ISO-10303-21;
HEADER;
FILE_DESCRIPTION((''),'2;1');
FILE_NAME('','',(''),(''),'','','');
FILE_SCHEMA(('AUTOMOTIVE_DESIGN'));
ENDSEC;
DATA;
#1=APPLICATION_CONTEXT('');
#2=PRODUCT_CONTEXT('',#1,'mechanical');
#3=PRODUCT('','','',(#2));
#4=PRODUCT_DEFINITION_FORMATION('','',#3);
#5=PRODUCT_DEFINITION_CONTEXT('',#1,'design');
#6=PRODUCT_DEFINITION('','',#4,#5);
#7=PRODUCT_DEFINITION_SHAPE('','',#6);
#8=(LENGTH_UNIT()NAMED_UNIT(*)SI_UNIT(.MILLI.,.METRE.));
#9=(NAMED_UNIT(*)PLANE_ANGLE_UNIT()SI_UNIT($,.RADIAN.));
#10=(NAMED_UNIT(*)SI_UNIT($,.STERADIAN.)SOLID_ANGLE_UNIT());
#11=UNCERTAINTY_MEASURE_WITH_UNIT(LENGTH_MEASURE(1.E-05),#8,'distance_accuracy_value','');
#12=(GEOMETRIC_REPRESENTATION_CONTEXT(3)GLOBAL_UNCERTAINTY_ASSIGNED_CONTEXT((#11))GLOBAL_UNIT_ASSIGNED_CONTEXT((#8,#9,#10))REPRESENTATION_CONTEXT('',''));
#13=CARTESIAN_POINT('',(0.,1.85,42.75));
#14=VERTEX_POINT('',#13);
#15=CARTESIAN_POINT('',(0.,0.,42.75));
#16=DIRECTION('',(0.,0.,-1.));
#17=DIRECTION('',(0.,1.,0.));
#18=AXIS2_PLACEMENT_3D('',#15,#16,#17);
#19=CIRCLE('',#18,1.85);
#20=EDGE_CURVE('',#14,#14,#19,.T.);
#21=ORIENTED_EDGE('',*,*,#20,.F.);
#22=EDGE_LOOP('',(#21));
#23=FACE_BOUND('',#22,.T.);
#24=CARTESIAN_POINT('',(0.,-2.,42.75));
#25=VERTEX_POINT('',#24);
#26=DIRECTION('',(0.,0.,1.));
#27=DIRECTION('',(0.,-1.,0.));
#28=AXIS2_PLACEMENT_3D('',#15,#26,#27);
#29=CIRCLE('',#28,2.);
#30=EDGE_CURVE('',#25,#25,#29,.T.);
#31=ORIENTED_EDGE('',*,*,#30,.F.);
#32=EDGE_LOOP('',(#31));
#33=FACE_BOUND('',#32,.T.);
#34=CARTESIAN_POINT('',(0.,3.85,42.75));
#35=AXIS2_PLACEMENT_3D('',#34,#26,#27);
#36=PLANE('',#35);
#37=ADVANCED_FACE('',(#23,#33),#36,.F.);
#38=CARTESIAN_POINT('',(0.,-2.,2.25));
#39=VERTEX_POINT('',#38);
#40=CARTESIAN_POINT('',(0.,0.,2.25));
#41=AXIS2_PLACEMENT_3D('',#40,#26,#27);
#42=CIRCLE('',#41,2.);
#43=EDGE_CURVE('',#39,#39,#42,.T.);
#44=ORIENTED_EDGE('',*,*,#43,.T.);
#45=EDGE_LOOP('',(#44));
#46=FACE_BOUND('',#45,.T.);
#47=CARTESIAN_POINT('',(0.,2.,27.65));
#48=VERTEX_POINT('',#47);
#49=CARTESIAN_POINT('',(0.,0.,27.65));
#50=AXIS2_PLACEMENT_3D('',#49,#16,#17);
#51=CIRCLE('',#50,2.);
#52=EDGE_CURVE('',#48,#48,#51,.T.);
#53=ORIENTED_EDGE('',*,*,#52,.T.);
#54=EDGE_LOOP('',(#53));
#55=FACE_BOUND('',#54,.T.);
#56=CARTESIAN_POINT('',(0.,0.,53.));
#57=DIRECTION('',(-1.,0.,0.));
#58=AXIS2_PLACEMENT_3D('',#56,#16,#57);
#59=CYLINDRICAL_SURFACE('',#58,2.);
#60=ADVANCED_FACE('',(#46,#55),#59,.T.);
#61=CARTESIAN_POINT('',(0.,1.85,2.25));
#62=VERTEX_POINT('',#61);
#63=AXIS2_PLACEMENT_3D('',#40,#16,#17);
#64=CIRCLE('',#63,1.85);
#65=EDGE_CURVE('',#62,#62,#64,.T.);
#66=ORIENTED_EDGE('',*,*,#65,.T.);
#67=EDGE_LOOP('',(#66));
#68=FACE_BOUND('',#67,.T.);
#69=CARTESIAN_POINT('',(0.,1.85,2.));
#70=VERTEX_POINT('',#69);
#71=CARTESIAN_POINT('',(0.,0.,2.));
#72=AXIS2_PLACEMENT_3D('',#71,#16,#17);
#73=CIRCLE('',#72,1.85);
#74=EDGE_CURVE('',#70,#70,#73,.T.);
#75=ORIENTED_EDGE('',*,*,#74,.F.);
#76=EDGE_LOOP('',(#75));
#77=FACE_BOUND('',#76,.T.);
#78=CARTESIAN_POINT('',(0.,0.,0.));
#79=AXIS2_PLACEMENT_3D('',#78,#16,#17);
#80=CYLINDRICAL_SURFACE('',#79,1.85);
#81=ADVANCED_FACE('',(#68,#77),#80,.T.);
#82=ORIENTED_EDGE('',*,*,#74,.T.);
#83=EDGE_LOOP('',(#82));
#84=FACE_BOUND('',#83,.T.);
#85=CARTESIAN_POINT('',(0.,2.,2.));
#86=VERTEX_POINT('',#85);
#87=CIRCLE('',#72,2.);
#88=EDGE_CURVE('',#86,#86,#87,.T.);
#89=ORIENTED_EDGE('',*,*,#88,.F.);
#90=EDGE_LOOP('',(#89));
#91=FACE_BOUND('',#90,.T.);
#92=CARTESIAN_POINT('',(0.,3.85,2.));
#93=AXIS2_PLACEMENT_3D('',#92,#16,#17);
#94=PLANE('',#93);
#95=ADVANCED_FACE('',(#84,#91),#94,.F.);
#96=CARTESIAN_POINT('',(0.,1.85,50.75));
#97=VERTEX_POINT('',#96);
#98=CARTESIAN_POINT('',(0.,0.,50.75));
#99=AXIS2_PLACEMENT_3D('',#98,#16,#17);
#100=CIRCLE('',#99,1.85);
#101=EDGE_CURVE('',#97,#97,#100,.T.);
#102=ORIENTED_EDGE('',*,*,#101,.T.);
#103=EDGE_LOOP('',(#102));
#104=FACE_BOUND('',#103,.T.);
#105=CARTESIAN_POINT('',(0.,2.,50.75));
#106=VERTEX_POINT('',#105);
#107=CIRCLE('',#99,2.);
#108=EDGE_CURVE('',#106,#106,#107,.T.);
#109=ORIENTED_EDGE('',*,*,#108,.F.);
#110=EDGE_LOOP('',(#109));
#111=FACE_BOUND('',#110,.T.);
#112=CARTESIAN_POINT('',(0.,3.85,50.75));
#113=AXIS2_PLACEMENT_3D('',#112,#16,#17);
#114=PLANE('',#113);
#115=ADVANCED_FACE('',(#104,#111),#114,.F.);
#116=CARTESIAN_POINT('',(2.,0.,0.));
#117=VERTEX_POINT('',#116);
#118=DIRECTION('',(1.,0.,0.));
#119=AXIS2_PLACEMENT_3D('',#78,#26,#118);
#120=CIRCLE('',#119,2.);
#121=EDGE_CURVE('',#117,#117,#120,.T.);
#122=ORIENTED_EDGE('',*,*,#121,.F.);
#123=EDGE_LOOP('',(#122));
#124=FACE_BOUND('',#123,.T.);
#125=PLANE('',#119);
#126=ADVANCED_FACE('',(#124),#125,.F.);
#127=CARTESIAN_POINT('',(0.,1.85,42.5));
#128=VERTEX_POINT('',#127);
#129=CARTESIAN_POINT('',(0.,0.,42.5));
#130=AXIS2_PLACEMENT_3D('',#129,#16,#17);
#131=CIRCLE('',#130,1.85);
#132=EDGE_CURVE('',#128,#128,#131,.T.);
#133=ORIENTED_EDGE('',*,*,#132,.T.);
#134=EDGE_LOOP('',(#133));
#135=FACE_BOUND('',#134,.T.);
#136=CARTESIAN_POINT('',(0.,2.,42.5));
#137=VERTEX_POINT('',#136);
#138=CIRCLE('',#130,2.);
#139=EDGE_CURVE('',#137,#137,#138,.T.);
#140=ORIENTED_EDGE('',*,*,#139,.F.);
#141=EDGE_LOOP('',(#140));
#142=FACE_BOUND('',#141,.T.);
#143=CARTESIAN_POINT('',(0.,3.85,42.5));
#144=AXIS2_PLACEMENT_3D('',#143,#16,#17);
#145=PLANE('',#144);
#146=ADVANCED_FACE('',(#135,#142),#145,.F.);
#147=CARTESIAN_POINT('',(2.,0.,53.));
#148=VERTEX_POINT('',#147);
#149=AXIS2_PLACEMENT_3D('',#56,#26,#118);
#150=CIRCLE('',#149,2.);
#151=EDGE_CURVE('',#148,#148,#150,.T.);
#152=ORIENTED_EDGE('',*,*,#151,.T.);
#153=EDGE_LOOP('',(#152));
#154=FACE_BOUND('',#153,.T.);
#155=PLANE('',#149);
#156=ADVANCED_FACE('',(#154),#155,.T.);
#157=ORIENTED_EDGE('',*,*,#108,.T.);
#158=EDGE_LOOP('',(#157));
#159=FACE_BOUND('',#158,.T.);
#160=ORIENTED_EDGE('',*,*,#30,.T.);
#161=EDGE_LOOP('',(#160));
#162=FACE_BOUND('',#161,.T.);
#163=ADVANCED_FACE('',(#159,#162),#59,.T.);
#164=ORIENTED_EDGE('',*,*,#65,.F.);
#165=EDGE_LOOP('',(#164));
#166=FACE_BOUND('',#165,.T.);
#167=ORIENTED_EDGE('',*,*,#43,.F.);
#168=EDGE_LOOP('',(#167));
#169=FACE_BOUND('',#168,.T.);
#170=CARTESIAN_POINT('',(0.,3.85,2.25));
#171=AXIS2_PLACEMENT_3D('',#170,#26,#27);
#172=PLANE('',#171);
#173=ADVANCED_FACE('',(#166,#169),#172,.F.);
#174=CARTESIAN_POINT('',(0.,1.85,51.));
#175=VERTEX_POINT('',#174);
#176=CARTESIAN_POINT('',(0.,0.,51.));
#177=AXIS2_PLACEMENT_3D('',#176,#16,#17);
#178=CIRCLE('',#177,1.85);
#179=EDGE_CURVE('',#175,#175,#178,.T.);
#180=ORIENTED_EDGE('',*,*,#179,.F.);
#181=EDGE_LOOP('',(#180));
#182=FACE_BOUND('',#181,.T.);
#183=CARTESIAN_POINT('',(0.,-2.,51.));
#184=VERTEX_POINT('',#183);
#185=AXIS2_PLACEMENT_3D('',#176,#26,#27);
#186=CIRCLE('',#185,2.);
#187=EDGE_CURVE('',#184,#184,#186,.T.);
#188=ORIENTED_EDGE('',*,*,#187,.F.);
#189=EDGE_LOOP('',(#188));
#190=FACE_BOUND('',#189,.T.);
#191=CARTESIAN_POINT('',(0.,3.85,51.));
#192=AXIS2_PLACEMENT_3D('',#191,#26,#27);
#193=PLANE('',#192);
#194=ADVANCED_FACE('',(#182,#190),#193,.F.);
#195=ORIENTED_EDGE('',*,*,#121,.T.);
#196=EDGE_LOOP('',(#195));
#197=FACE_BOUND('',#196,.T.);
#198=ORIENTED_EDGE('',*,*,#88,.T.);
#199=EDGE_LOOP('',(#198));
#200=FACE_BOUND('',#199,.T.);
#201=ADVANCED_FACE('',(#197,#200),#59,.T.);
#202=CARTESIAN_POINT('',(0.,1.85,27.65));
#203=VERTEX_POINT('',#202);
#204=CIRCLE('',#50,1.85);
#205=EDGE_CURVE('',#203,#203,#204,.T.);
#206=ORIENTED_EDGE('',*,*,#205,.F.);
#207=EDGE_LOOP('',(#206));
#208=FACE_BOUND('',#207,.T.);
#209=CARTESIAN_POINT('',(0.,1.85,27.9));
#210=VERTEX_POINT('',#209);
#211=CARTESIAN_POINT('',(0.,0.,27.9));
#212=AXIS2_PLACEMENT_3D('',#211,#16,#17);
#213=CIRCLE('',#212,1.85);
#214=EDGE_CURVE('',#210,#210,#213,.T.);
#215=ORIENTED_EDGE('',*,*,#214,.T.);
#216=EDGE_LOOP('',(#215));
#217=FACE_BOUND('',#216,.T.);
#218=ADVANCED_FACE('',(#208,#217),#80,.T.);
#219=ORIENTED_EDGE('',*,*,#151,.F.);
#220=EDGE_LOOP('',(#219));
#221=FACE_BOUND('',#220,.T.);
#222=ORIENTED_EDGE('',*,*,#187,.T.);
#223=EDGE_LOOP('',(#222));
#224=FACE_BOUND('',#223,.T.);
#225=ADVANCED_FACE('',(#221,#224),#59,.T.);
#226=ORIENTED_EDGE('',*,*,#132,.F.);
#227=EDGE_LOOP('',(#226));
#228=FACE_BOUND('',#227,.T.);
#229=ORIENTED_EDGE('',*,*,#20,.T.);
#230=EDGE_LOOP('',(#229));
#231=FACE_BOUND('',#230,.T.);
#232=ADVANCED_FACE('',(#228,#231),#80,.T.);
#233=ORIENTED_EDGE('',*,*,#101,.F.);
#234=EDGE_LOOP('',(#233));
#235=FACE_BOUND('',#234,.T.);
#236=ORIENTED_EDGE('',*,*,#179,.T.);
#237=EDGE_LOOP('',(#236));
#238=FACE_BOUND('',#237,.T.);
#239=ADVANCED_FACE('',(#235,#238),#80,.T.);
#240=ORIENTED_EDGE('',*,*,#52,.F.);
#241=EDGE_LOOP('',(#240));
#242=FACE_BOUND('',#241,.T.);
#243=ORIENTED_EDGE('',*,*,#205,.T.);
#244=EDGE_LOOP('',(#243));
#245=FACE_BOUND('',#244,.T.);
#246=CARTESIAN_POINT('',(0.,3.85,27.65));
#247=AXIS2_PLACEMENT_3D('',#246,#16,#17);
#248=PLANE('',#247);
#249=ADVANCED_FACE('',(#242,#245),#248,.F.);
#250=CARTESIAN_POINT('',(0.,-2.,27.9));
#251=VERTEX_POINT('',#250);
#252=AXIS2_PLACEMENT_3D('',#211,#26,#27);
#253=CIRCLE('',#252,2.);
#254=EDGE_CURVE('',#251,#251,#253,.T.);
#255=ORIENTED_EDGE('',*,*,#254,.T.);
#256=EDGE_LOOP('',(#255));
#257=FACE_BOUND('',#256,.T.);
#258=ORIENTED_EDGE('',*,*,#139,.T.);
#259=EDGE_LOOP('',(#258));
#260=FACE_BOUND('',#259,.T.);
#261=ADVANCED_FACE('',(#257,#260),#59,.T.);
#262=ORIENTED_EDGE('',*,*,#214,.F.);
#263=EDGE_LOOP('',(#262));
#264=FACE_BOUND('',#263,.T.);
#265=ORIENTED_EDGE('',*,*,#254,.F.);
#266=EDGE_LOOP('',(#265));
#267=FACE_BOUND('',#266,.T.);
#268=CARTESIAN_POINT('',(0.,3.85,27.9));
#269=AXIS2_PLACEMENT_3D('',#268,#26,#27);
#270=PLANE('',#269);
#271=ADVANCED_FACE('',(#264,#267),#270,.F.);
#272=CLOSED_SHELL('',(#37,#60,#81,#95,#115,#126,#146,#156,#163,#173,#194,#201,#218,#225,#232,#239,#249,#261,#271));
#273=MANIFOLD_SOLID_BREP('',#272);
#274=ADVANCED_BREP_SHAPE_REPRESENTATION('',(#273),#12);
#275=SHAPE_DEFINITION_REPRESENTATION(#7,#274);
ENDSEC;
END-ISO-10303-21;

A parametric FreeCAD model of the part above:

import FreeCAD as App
import Part
import Sketcher
from FreeCAD import Vector

doc = App.newDocument("Part")
body = doc.addObject("PartDesign::Body", "Body")

sketch1 = doc.addObject("Sketcher::SketchObject", "Sketch")
body.addObject(sketch1)
sketch1.AttachmentSupport = (doc.XY_Plane, [""])
sketch1.MapMode = "FlatFace"
sketch1.addGeometry(Part.Circle(Vector(0, 0, 0), Vector(0, 0, 1), 2), False)
sketch1.addConstraint(Sketcher.Constraint("Coincident", 0, 3, -1, 1))
sketch1.addConstraint(Sketcher.Constraint("Diameter", 0, 4.0))
pad1 = doc.addObject("PartDesign::Pad", "Pad")
body.addObject(pad1)
pad1.Profile = sketch1
pad1.Length = 53

sketch2 = doc.addObject("Sketcher::SketchObject", "Sketch001")
body.addObject(sketch2)
sketch2.AttachmentSupport = (doc.YZ_Plane, [""])
sketch2.MapMode = "FlatFace"
sketch2.addGeometry(Part.LineSegment(Vector(3.85, 51, 0), Vector(1.85, 51, 0)), False)
sketch2.addGeometry(Part.LineSegment(Vector(1.85, 51, 0), Vector(1.85, 50.75, 0)), False)
sketch2.addGeometry(Part.LineSegment(Vector(1.85, 50.75, 0), Vector(3.85, 50.75, 0)), False)
sketch2.addGeometry(Part.LineSegment(Vector(3.85, 50.75, 0), Vector(3.85, 51, 0)), False)
sketch2.addGeometry(Part.LineSegment(Vector(3.85, 42.75, 0), Vector(1.85, 42.75, 0)), False)
sketch2.addGeometry(Part.LineSegment(Vector(1.85, 42.75, 0), Vector(1.85, 42.5, 0)), False)
sketch2.addGeometry(Part.LineSegment(Vector(1.85, 42.5, 0), Vector(3.85, 42.5, 0)), False)
sketch2.addGeometry(Part.LineSegment(Vector(3.85, 42.5, 0), Vector(3.85, 42.75, 0)), False)
sketch2.addGeometry(Part.LineSegment(Vector(3.85, 2.25, 0), Vector(1.85, 2.25, 0)), False)
sketch2.addGeometry(Part.LineSegment(Vector(1.85, 2.25, 0), Vector(1.85, 2, 0)), False)
sketch2.addGeometry(Part.LineSegment(Vector(1.85, 2, 0), Vector(3.85, 2, 0)), False)
sketch2.addGeometry(Part.LineSegment(Vector(3.85, 2, 0), Vector(3.85, 2.25, 0)), False)
sketch2.addGeometry(Part.LineSegment(Vector(3.85, 27.9, 0), Vector(1.85, 27.9, 0)), False)
sketch2.addGeometry(Part.LineSegment(Vector(1.85, 27.9, 0), Vector(1.85, 27.65, 0)), False)
sketch2.addGeometry(Part.LineSegment(Vector(1.85, 27.65, 0), Vector(3.85, 27.65, 0)), False)
sketch2.addGeometry(Part.LineSegment(Vector(3.85, 27.65, 0), Vector(3.85, 27.9, 0)), False)
sketch2.addConstraint(Sketcher.Constraint("Coincident", 0, 2, 1, 1))
sketch2.addConstraint(Sketcher.Constraint("Coincident", 1, 2, 2, 1))
sketch2.addConstraint(Sketcher.Constraint("Coincident", 2, 2, 3, 1))
sketch2.addConstraint(Sketcher.Constraint("Coincident", 3, 2, 0, 1))
sketch2.addConstraint(Sketcher.Constraint("Coincident", 4, 2, 5, 1))
sketch2.addConstraint(Sketcher.Constraint("Coincident", 5, 2, 6, 1))
sketch2.addConstraint(Sketcher.Constraint("Coincident", 6, 2, 7, 1))
sketch2.addConstraint(Sketcher.Constraint("Coincident", 7, 2, 4, 1))
sketch2.addConstraint(Sketcher.Constraint("Coincident", 8, 2, 9, 1))
sketch2.addConstraint(Sketcher.Constraint("Coincident", 9, 2, 10, 1))
sketch2.addConstraint(Sketcher.Constraint("Coincident", 10, 2, 11, 1))
sketch2.addConstraint(Sketcher.Constraint("Coincident", 11, 2, 8, 1))
sketch2.addConstraint(Sketcher.Constraint("Coincident", 12, 2, 13, 1))
sketch2.addConstraint(Sketcher.Constraint("Coincident", 13, 2, 14, 1))
sketch2.addConstraint(Sketcher.Constraint("Coincident", 14, 2, 15, 1))
sketch2.addConstraint(Sketcher.Constraint("Coincident", 15, 2, 12, 1))
sketch2.addConstraint(Sketcher.Constraint("Horizontal", 0))
sketch2.addConstraint(Sketcher.Constraint("Vertical", 1))
sketch2.addConstraint(Sketcher.Constraint("Horizontal", 2))
sketch2.addConstraint(Sketcher.Constraint("Vertical", 3))
sketch2.addConstraint(Sketcher.Constraint("Horizontal", 4))
sketch2.addConstraint(Sketcher.Constraint("Vertical", 5))
sketch2.addConstraint(Sketcher.Constraint("Horizontal", 6))
sketch2.addConstraint(Sketcher.Constraint("Vertical", 7))
sketch2.addConstraint(Sketcher.Constraint("Horizontal", 8))
sketch2.addConstraint(Sketcher.Constraint("Vertical", 9))
sketch2.addConstraint(Sketcher.Constraint("Horizontal", 10))
sketch2.addConstraint(Sketcher.Constraint("Vertical", 11))
sketch2.addConstraint(Sketcher.Constraint("Horizontal", 12))
sketch2.addConstraint(Sketcher.Constraint("Vertical", 13))
sketch2.addConstraint(Sketcher.Constraint("Horizontal", 14))
sketch2.addConstraint(Sketcher.Constraint("Vertical", 15))
sketch2.addConstraint(Sketcher.Constraint("Vertical", 1, 2, 4, 2))
sketch2.addConstraint(Sketcher.Constraint("Vertical", 3, 2, 6, 2))
sketch2.addConstraint(Sketcher.Constraint("Vertical", 5, 2, 8, 2))
sketch2.addConstraint(Sketcher.Constraint("Vertical", 7, 2, 10, 2))
sketch2.addConstraint(Sketcher.Constraint("Vertical", 9, 2, 12, 2))
sketch2.addConstraint(Sketcher.Constraint("Vertical", 11, 2, 14, 2))
sketch2.addConstraint(Sketcher.Constraint("Equal", 3, 5))
sketch2.addConstraint(Sketcher.Constraint("Equal", 7, 9))
sketch2.addConstraint(Sketcher.Constraint("Equal", 11, 13))
sketch2.addConstraint(Sketcher.Constraint("DistanceX", 0, 2, 0, 1, 2.0))
sketch2.addConstraint(Sketcher.Constraint("DistanceY", -1, 1, 0, 2, 51.0))
sketch2.addConstraint(Sketcher.Constraint("DistanceY", -1, 1, 9, 2, 2.0))
sketch2.addConstraint(Sketcher.Constraint("DistanceY", 4, 2, 1, 2, 8.0))
sketch2.addConstraint(Sketcher.Constraint("DistanceY", 1, 2, 1, 1, 0.25))
sketch2.addConstraint(Sketcher.Constraint("DistanceY", -1, 1, 12, 2, 27.9))
sketch2.addConstraint(Sketcher.Constraint("DistanceX", -1, 1, 0, 2, 1.85))
groove = doc.addObject("PartDesign::Groove", "Groove")
body.addObject(groove)
groove.Profile = sketch2
groove.ReferenceAxis = (sketch2, ["V_Axis"])
groove.Angle = 360

doc.recompute()
